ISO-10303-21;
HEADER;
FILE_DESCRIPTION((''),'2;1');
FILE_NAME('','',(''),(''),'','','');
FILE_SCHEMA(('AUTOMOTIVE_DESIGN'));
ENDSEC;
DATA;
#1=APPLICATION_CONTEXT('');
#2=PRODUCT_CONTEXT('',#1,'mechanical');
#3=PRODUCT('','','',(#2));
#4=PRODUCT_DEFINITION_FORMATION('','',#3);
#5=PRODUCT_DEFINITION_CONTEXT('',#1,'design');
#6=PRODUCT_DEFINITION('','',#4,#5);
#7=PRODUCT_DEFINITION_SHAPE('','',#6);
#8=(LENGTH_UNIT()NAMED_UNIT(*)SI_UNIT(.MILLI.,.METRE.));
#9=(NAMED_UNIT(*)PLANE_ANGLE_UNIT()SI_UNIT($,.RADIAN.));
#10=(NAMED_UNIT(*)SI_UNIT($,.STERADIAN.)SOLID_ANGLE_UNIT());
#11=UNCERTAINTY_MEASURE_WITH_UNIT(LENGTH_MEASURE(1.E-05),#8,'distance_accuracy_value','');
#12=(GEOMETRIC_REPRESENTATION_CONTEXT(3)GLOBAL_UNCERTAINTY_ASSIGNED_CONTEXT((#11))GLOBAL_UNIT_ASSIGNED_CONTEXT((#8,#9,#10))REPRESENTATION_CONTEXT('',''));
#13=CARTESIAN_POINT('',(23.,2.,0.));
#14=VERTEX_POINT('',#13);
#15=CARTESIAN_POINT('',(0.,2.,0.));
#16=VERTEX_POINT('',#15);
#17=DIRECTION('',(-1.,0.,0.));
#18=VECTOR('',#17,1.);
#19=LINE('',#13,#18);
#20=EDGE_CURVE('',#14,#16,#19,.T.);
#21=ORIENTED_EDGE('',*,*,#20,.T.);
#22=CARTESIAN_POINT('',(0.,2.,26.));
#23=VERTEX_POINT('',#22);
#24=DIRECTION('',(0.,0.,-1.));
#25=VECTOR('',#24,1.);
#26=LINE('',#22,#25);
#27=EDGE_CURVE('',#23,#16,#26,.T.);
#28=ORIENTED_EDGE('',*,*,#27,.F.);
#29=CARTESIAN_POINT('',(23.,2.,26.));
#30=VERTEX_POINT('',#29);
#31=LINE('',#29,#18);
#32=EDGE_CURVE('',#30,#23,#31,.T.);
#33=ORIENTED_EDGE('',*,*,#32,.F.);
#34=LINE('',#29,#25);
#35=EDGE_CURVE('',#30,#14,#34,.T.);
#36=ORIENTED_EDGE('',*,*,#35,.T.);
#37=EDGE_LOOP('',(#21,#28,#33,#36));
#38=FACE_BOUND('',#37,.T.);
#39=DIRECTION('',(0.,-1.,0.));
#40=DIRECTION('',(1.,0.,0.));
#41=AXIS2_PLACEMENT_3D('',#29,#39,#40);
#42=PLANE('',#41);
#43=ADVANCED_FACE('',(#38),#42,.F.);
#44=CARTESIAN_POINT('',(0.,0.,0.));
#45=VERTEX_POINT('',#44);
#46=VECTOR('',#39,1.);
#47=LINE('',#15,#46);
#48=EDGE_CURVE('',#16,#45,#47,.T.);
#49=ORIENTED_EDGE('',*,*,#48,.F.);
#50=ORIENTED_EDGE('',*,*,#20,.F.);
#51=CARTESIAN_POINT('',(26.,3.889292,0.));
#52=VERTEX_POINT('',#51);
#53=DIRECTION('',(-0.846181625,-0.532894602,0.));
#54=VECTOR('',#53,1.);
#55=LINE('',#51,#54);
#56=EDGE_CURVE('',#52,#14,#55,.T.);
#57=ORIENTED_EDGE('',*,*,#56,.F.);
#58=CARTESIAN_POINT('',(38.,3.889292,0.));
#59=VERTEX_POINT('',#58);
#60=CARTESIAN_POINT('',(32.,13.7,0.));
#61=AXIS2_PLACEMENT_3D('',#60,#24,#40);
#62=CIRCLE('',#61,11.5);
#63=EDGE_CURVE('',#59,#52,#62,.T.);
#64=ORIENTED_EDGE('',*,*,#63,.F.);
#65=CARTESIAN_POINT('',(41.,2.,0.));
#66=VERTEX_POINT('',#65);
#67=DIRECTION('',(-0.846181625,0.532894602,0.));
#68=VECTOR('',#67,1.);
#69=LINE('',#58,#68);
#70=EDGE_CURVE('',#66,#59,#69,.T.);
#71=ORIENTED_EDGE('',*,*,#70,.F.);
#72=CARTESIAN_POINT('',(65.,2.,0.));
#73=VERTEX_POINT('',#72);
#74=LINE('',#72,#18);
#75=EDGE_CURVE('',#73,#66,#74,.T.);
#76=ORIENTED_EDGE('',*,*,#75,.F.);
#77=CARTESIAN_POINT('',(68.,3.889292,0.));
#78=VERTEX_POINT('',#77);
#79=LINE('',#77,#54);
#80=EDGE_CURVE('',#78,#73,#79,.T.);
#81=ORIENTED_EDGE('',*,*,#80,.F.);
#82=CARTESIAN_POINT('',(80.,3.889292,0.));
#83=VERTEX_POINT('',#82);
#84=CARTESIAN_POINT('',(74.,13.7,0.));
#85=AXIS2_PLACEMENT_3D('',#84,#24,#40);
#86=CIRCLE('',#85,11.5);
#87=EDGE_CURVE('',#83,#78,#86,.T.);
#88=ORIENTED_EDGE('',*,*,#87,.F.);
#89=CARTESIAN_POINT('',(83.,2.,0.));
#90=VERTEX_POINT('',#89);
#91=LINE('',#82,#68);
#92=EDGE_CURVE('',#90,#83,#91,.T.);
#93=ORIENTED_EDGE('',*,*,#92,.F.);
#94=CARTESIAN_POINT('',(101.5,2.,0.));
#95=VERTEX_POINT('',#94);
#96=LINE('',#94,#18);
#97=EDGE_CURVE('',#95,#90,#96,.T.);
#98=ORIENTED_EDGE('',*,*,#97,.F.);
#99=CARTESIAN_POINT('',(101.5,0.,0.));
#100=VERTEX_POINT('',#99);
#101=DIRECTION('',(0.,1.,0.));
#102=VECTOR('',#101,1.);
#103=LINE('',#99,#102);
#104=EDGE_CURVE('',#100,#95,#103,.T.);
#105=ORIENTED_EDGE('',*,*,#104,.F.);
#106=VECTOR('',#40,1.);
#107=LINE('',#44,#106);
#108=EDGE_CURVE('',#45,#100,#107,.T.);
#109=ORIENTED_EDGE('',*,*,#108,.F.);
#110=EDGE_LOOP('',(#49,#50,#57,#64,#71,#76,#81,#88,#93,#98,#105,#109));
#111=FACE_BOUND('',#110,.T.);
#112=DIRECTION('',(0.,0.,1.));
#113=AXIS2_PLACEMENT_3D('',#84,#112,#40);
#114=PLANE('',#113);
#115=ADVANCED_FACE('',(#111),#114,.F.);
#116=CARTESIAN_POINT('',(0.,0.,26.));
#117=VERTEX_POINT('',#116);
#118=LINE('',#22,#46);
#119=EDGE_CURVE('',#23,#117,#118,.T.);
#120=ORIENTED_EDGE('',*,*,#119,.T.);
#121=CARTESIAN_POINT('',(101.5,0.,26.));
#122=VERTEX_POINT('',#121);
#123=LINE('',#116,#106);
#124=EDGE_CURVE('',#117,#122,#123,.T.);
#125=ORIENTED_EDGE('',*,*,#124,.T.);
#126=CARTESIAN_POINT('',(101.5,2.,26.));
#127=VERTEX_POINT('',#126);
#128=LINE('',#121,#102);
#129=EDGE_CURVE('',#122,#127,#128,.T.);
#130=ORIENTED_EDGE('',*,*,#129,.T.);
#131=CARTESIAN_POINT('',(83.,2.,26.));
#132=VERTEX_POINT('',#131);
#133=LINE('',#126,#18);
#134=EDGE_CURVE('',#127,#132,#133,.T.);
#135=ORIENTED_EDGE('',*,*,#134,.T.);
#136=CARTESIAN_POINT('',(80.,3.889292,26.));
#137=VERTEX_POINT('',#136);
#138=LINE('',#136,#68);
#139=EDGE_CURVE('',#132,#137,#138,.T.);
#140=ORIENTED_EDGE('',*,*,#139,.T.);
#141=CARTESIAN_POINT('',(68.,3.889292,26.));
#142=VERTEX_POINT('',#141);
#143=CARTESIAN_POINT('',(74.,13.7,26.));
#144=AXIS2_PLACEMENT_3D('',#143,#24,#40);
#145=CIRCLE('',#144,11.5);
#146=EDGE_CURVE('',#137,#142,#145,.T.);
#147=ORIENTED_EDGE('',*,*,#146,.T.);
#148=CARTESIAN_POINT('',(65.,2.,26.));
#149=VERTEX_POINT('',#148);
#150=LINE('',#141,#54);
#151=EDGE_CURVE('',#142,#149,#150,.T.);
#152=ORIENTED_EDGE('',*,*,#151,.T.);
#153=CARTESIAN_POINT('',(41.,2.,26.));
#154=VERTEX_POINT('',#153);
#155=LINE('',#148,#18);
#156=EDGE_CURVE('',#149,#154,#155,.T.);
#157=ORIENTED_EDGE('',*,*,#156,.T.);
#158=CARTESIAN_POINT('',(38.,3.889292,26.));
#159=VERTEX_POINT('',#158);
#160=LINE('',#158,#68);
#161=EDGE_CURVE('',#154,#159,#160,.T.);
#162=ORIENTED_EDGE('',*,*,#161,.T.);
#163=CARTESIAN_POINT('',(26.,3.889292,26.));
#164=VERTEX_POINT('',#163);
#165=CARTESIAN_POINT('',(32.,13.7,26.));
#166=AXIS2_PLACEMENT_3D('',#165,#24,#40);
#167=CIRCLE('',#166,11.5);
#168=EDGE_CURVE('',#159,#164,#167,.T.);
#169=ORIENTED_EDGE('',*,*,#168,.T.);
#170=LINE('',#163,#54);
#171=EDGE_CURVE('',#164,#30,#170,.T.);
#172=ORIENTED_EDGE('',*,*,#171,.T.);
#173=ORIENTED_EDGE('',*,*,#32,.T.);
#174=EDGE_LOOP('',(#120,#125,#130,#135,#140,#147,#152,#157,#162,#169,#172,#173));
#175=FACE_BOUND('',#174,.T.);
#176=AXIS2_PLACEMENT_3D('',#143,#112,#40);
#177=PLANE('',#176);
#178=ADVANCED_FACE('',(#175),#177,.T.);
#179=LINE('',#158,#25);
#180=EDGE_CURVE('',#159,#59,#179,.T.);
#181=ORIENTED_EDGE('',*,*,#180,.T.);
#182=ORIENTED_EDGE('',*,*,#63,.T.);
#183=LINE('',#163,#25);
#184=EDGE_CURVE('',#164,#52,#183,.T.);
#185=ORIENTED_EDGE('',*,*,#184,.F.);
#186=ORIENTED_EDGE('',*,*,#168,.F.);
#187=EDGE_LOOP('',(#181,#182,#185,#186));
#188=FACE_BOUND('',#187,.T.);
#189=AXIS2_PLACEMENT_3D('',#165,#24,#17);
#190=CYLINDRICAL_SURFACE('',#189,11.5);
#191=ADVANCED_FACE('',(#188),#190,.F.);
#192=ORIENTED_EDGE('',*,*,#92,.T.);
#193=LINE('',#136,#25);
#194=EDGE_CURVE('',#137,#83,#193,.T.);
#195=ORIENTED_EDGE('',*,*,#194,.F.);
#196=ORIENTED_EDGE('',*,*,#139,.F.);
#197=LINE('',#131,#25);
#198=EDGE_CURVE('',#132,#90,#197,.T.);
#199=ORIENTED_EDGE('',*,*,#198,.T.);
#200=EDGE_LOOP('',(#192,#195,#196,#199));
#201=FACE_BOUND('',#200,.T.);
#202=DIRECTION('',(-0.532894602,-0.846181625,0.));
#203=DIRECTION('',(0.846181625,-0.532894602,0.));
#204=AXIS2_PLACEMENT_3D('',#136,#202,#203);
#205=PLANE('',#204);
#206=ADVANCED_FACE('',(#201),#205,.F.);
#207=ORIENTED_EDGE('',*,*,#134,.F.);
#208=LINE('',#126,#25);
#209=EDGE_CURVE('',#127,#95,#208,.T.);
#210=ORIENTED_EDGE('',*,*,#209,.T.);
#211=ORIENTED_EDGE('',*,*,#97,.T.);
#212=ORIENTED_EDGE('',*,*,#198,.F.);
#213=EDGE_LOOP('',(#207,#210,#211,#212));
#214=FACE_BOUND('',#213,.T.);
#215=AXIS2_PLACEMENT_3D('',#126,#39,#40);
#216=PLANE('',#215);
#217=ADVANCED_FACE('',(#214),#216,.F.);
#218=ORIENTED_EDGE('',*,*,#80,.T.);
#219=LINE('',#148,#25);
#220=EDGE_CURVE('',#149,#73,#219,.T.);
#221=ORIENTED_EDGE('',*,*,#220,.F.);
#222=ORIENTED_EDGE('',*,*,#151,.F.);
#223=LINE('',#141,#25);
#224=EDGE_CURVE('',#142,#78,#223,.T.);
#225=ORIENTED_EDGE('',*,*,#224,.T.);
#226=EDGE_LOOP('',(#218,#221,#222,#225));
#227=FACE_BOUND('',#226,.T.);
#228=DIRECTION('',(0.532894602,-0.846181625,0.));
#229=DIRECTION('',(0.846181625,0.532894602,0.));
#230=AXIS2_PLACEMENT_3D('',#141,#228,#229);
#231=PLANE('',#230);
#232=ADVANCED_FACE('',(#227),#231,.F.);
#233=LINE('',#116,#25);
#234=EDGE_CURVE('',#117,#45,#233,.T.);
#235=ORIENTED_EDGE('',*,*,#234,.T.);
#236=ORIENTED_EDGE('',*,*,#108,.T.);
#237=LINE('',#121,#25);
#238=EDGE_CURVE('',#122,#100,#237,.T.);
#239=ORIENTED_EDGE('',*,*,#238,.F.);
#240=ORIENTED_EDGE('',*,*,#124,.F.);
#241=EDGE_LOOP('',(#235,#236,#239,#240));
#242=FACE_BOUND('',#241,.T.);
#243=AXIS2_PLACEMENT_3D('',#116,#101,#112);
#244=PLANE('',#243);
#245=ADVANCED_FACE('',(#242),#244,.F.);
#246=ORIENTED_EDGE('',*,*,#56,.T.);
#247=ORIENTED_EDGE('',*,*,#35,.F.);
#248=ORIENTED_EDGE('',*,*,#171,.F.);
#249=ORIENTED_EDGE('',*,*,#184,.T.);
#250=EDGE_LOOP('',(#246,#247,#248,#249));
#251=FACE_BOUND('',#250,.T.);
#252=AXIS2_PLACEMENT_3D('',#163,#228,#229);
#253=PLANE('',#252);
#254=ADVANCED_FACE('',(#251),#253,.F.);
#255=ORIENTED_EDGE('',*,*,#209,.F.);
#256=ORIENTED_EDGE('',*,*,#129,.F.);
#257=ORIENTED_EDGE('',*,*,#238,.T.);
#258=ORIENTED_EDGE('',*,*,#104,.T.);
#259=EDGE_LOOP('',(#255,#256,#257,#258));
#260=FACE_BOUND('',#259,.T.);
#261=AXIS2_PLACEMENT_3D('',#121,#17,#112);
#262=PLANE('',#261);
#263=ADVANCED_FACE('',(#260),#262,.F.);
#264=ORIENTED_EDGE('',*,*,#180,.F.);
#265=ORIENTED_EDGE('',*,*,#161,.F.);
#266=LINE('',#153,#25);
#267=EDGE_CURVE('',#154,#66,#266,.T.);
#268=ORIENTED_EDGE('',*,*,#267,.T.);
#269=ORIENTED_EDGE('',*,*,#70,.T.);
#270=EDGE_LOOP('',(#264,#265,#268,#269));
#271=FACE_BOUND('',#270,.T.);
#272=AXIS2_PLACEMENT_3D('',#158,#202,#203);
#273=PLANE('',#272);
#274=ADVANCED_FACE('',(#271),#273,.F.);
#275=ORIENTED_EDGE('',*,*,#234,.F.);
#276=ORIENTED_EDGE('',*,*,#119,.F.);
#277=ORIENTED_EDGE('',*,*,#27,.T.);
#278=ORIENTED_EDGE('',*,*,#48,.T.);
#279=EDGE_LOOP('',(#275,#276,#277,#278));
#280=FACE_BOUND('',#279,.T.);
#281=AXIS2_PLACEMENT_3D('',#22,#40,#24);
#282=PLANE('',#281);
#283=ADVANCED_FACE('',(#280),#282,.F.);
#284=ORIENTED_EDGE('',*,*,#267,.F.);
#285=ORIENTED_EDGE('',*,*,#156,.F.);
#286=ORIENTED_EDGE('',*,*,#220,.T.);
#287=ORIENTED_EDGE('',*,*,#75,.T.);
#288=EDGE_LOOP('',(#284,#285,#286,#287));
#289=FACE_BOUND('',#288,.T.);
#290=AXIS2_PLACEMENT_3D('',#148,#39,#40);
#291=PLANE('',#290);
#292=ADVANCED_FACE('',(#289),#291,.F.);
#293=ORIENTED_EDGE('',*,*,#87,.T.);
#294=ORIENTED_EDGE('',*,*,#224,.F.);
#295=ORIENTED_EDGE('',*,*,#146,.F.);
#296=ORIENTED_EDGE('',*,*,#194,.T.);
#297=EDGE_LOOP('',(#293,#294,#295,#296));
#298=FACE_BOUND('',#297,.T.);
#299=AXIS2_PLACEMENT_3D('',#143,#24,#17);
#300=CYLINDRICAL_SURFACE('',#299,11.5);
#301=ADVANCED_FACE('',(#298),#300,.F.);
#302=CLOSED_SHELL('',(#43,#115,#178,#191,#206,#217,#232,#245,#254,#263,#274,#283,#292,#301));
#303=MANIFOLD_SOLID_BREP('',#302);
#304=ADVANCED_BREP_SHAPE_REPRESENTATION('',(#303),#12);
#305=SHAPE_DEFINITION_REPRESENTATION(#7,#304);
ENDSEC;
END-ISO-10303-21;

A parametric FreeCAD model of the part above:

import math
import FreeCAD as App
import Part
import Sketcher
from FreeCAD import Vector

doc = App.newDocument("Part")
body = doc.addObject("PartDesign::Body", "Body")

# Sketch on XY plane
sketch1 = body.newObject("Sketcher::SketchObject", "Sketch")
sketch1.AttachmentSupport = (doc.getObject("XY_Plane"), [""])
sketch1.MapMode = "FlatFace"
sketch1.addGeometry([
    Part.LineSegment(Vector(0, 0, 0), Vector(101.5, 0, 0)),  # 0
    Part.LineSegment(Vector(101.5, 0, 0), Vector(101.5, 2, 0)),  # 1
    Part.LineSegment(Vector(101.5, 2, 0), Vector(83, 2, 0)),  # 2
    Part.LineSegment(Vector(83, 2, 0), Vector(80, 3.889292, 0)),  # 3
    Part.ArcOfCircle(Part.Circle(Vector(74, 13.7, 0), Vector(0, 0, 1), 11.5), math.radians(-121.448981), math.radians(-58.551019)),  # 4
    Part.LineSegment(Vector(68, 3.889292, 0), Vector(65, 2, 0)),  # 5
    Part.LineSegment(Vector(65, 2, 0), Vector(41, 2, 0)),  # 6
    Part.LineSegment(Vector(41, 2, 0), Vector(38, 3.889292, 0)),  # 7
    Part.ArcOfCircle(Part.Circle(Vector(32, 13.7, 0), Vector(0, 0, 1), 11.5), math.radians(-121.448981), math.radians(-58.551019)),  # 8
    Part.LineSegment(Vector(26, 3.889292, 0), Vector(23, 2, 0)),  # 9
    Part.LineSegment(Vector(23, 2, 0), Vector(0, 2, 0)),  # 10
    Part.LineSegment(Vector(0, 2, 0), Vector(0, 0, 0)),  # 11
], False)
sketch1.addConstraint([
    Sketcher.Constraint("Coincident", 0, 2, 1, 1),
    Sketcher.Constraint("Coincident", 1, 2, 2, 1),
    Sketcher.Constraint("Coincident", 2, 2, 3, 1),
    Sketcher.Constraint("Coincident", 3, 2, 4, 2),
    Sketcher.Constraint("Coincident", 4, 1, 5, 1),
    Sketcher.Constraint("Coincident", 5, 2, 6, 1),
    Sketcher.Constraint("Coincident", 6, 2, 7, 1),
    Sketcher.Constraint("Coincident", 7, 2, 8, 2),
    Sketcher.Constraint("Coincident", 8, 1, 9, 1),
    Sketcher.Constraint("Coincident", 9, 2, 10, 1),
    Sketcher.Constraint("Coincident", 10, 2, 11, 1),
    Sketcher.Constraint("Coincident", 11, 2, 0, 1),
    Sketcher.Constraint("Horizontal", 0),
    Sketcher.Constraint("Vertical", 1),
    Sketcher.Constraint("Horizontal", 2),
    Sketcher.Constraint("Horizontal", 6),
    Sketcher.Constraint("Horizontal", 10),
    Sketcher.Constraint("Vertical", 11),
    Sketcher.Constraint("Coincident", 11, 2, -1, 1),
    Sketcher.Constraint("Equal", 4, 8),
    Sketcher.Constraint("Parallel", 3, 7),
    Sketcher.Constraint("Parallel", 5, 9),
    Sketcher.Constraint("Horizontal", 4, 3, 8, 3),
    Sketcher.Constraint("Horizontal", 3, 2, 4, 1),
    Sketcher.Constraint("Horizontal", 2, 2, 5, 2),
    Sketcher.Constraint("Horizontal", 4, 1, 7, 2),
    Sketcher.Constraint("Horizontal", 7, 2, 8, 1),
    Sketcher.Constraint("Horizontal", 6, 2, 9, 2),
    Sketcher.Constraint("Equal", 3, 5),
    Sketcher.Constraint("Radius", 4, 11.5),
    Sketcher.Constraint("DistanceX", 6, 2, 6, 1, 24.0),
    Sketcher.Constraint("DistanceX", 10, 2, 10, 1, 23.0),
    Sketcher.Constraint("DistanceY", 1, 1, 1, 2, 2.0),
    Sketcher.Constraint("DistanceX", 0, 1, 0, 2, 101.5),
    Sketcher.Constraint("DistanceX", 2, 2, 2, 1, 18.5),
    Sketcher.Constraint("DistanceX", -1, 1, 3, 2, 80.0),
    Sketcher.Constraint("DistanceY", -1, 1, 4, 3, 13.7),
])
pad1 = body.newObject("PartDesign::Pad", "Pad")
pad1.Profile = sketch1
pad1.Length = 26

doc.recompute()
